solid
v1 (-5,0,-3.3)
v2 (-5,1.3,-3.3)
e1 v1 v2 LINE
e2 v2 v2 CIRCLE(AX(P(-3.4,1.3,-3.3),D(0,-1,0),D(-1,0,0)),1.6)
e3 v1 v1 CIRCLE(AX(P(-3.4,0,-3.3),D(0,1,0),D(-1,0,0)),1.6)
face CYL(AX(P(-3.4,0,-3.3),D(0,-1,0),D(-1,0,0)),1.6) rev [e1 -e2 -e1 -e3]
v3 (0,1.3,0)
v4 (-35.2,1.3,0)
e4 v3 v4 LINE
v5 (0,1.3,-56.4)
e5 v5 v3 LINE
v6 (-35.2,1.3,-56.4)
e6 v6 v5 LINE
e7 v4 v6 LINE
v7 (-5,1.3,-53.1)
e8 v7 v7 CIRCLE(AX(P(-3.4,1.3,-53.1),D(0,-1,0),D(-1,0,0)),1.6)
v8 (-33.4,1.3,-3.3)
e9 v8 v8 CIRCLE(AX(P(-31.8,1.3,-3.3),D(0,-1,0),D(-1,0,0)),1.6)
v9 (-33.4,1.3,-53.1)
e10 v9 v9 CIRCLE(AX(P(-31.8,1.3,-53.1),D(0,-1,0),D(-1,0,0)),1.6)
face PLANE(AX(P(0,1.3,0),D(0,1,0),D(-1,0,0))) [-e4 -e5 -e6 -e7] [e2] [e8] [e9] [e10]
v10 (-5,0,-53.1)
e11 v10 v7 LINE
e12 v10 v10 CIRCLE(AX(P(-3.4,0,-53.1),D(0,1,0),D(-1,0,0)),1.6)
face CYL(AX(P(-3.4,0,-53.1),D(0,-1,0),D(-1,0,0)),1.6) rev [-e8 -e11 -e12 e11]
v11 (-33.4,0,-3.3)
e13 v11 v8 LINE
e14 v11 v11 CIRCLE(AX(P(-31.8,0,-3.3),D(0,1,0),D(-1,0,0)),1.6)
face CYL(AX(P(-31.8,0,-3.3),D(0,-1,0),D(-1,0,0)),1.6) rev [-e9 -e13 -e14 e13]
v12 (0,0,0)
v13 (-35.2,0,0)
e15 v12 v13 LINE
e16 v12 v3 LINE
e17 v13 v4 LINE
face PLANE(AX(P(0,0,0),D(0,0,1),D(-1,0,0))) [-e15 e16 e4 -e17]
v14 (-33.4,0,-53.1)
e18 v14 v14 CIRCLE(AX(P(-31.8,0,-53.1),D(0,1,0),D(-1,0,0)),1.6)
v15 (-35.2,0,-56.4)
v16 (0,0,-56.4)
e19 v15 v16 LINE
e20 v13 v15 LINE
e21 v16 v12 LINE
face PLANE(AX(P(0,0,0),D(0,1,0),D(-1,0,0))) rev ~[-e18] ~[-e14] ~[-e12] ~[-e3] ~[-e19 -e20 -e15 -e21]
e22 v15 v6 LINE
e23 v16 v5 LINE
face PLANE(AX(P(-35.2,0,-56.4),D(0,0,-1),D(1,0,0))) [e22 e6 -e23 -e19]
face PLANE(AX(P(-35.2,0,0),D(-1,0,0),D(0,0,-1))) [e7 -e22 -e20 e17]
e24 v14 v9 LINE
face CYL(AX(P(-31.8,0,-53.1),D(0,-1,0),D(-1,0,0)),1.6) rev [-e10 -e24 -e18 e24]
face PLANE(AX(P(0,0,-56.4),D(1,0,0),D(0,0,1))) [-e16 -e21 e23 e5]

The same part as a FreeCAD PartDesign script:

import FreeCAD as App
import Part
import Sketcher

doc = App.newDocument("Part")
body = doc.addObject("PartDesign::Body", "Body")

# Sketch on XZ plane
sketch1 = doc.addObject("Sketcher::SketchObject", "Sketch")
body.addObject(sketch1)
sketch1.AttachmentSupport = (doc.XZ_Plane, [""])
sketch1.MapMode = "FlatFace"
sketch1.addGeometry(Part.LineSegment(App.Vector(-35.2, 0, 0), App.Vector(0, 0, 0)), False)
sketch1.addGeometry(Part.LineSegment(App.Vector(0, 0, 0), App.Vector(0, -56.4, 0)), False)
sketch1.addGeometry(Part.LineSegment(App.Vector(0, -56.4, 0), App.Vector(-35.2, -56.4, 0)), False)
sketch1.addGeometry(Part.LineSegment(App.Vector(-35.2, -56.4, 0), App.Vector(-35.2, 0, 0)), False)
sketch1.addConstraint(Sketcher.Constraint("Coincident", 0, 2, 1, 1))
sketch1.addConstraint(Sketcher.Constraint("Coincident", 1, 2, 2, 1))
sketch1.addConstraint(Sketcher.Constraint("Coincident", 2, 2, 3, 1))
sketch1.addConstraint(Sketcher.Constraint("Coincident", 3, 2, 0, 1))
sketch1.addConstraint(Sketcher.Constraint("Horizontal", 0))
sketch1.addConstraint(Sketcher.Constraint("Vertical", 1))
sketch1.addConstraint(Sketcher.Constraint("Horizontal", 2))
sketch1.addConstraint(Sketcher.Constraint("Vertical", 3))
sketch1.addConstraint(Sketcher.Constraint("Coincident", 0, 2, -1, 1))
sketch1.addConstraint(Sketcher.Constraint("DistanceX", 0, 1, 0, 2, 35.2))
sketch1.addConstraint(Sketcher.Constraint("DistanceY", 1, 2, 1, 1, 56.4))
pad1 = doc.addObject("PartDesign::Pad", "Pad")
body.addObject(pad1)
pad1.Profile = sketch1
pad1.Length = 1.3
pad1.Reversed = True

# Sketch on XZ plane
sketch2 = doc.addObject("Sketcher::SketchObject", "Sketch001")
body.addObject(sketch2)
sketch2.AttachmentSupport = (doc.XZ_Plane, [""])
sketch2.MapMode = "FlatFace"
sketch2.addGeometry(Part.Circle(App.Vector(-3.4, -3.3, 0), App.Vector(0, 0, 1), 1.6), False)
sketch2.addGeometry(Part.Circle(App.Vector(-31.8, -3.3, 0), App.Vector(0, 0, 1), 1.6), False)
sketch2.addGeometry(Part.Circle(App.Vector(-3.4, -53.1, 0), App.Vector(0, 0, 1), 1.6), False)
sketch2.addGeometry(Part.Circle(App.Vector(-31.8, -53.1, 0), App.Vector(0, 0, 1), 1.6), False)
sketch2.addConstraint(Sketcher.Constraint("Equal", 0, 1))
sketch2.addConstraint(Sketcher.Constraint("Equal", 1, 2))
sketch2.addConstraint(Sketcher.Constraint("Equal", 2, 3))
sketch2.addConstraint(Sketcher.Constraint("Horizontal", 0, 3, 1, 3))
sketch2.addConstraint(Sketcher.Constraint("Horizontal", 2, 3, 3, 3))
sketch2.addConstraint(Sketcher.Constraint("Vertical", 0, 3, 2, 3))
sketch2.addConstraint(Sketcher.Constraint("Vertical", 1, 3, 3, 3))
sketch2.addConstraint(Sketcher.Constraint("Diameter", 0, 3.2))
sketch2.addConstraint(Sketcher.Constraint("DistanceX", 0, 3, -1, 1, 3.4))
sketch2.addConstraint(Sketcher.Constraint("DistanceY", 0, 3, -1, 1, 3.3))
sketch2.addConstraint(Sketcher.Constraint("DistanceX", 1, 3, 0, 3, 28.4))
sketch2.addConstraint(Sketcher.Constraint("DistanceY", 2, 3, 0, 3, 49.8))
pocket1 = doc.addObject("PartDesign::Pocket", "Pocket")
body.addObject(pocket1)
pocket1.Profile = sketch2
pocket1.Length = 1.3

doc.recompute()
